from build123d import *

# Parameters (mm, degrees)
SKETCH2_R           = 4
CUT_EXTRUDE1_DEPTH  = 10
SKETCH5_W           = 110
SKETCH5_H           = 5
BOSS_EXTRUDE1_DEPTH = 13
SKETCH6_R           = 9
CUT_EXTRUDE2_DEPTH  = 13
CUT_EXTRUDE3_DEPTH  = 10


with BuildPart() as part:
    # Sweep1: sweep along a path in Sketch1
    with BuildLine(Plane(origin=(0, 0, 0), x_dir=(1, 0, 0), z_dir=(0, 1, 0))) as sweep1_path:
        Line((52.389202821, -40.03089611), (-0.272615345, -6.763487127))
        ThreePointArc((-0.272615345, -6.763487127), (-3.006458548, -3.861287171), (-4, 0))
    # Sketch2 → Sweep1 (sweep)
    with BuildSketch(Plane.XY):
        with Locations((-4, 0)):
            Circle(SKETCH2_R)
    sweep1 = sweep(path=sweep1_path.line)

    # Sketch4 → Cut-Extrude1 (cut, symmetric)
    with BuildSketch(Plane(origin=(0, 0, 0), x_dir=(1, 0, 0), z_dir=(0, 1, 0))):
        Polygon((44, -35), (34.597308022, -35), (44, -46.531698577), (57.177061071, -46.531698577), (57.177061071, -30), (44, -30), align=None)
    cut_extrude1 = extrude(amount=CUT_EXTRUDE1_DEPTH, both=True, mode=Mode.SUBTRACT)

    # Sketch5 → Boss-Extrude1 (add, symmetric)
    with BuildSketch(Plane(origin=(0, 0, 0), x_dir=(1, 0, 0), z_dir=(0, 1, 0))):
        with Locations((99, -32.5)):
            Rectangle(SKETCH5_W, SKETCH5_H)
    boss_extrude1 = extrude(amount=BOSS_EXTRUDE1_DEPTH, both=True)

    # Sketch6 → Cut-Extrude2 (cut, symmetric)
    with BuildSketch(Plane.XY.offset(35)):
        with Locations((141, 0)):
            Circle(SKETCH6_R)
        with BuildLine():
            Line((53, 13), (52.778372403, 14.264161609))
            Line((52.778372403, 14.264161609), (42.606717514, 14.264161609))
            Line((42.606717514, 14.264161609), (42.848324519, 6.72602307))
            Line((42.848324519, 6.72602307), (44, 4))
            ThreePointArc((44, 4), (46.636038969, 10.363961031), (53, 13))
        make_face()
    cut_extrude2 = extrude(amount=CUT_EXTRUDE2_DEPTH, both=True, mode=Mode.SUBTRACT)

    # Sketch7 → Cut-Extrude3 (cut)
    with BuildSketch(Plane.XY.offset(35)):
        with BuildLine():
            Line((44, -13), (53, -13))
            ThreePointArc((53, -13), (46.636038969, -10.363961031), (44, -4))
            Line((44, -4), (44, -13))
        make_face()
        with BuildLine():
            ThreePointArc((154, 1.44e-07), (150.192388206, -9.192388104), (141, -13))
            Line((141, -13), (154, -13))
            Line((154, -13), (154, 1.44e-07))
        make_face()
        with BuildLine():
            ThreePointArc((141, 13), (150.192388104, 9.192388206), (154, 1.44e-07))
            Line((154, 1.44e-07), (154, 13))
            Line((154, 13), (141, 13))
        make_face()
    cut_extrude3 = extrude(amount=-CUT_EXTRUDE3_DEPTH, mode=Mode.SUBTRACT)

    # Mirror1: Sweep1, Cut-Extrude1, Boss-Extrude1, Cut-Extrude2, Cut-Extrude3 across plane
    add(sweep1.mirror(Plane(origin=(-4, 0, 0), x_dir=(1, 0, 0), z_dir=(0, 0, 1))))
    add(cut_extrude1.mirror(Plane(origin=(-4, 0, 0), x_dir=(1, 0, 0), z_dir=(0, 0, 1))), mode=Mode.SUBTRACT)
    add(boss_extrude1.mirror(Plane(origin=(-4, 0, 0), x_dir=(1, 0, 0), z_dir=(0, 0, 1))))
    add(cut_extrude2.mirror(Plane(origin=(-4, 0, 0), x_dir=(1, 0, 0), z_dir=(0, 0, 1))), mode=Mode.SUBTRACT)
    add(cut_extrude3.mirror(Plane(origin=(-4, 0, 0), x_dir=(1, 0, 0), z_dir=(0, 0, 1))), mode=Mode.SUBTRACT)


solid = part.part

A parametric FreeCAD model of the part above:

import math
import FreeCAD as App
import Part
import Sketcher
Q = App.Units.Quantity


def add_polygon(sketch, points):
    """Adds a closed chain of lines whose ends are joined by coincident constraints."""
    first, n = sketch.GeometryCount, len(points)
    for a, b in zip(points, points[1:] + points[:1]):
        sketch.addGeometry(Part.LineSegment(App.Vector(*a, 0), App.Vector(*b, 0)), False)
    for i in range(n):
        sketch.addConstraint(Sketcher.Constraint("Coincident", first + i, 2, first + (i + 1) % n, 1))

doc = App.newDocument("Part")
body = doc.addObject("PartDesign::Body", "Body")

# Sketch on XY plane
sketch1 = body.newObject("Sketcher::SketchObject", "Sketch")
sketch1.AttachmentSupport = (doc.getObject("XY_Plane"), [""])
sketch1.MapMode = "FlatFace"
sketch1.addGeometry(Part.Circle(App.Vector(-4, 0, 0), App.Vector(0, 0, 1), 4), False)
sketch1.addConstraint(Sketcher.Constraint("PointOnObject", 0, 3, -1))
sketch1.addConstraint(Sketcher.Constraint("Diameter", 0, Q("8 mm")))
sketch1.addConstraint(Sketcher.Constraint("DistanceX", 0, 3, -1, 1, Q("4 mm")))

# Sketch on XZ plane
sketch2 = body.newObject("Sketcher::SketchObject", "Sketch001")
sketch2.AttachmentSupport = (doc.getObject("XZ_Plane"), [""])
sketch2.MapMode = "FlatFace"
sketch2.addGeometry(Part.LineSegment(App.Vector(52.389203, 40.030896, 0), App.Vector(-0.272615, 6.763487, 0)), False)
sketch2.addGeometry(Part.ArcOfCircle(Part.Circle(App.Vector(4, 0, 0), App.Vector(0, 0, 1), 8), math.radians(122.281332), math.radians(180)), False)
sketch2.addConstraint(Sketcher.Constraint("Tangent", 0, 2, 1, 1))
sketch2.addConstraint(Sketcher.Constraint("PointOnObject", 1, 3, -1))
sketch2.addConstraint(Sketcher.Constraint("PointOnObject", 1, 2, -1))
sketch2.addConstraint(Sketcher.Constraint("Radius", 1, Q("8 mm")))
sketch2.addConstraint(Sketcher.Constraint("DistanceX", -1, 1, 1, 3, Q("4 mm")))
sketch2.addConstraint(Sketcher.Constraint("DistanceX", 0, 2, 0, 1, Q("52.661818 mm")))
sketch2.addConstraint(Sketcher.Constraint("DistanceY", 0, 2, 0, 1, Q("33.267409 mm")))
doc.recompute()

additivepipe = body.newObject("PartDesign::AdditivePipe", "AdditivePipe")
additivepipe.Profile = sketch1
additivepipe.Spine = (sketch2, ["Edge1", "Edge2"])

# Sketch on XZ plane
sketch3 = body.newObject("Sketcher::SketchObject", "Sketch002")
sketch3.AttachmentSupport = (doc.getObject("XZ_Plane"), [""])
sketch3.MapMode = "FlatFace"
add_polygon(sketch3, [(44, 35), (34.597308, 35), (44, 46.531699), (57.177061, 46.531699), (57.177061, 30), (44, 30)])  # lines 0-5
sketch3.addConstraint(Sketcher.Constraint("Horizontal", 0))
sketch3.addConstraint(Sketcher.Constraint("Horizontal", 2))
sketch3.addConstraint(Sketcher.Constraint("Vertical", 3))
sketch3.addConstraint(Sketcher.Constraint("Horizontal", 4))
sketch3.addConstraint(Sketcher.Constraint("Vertical", 5))
sketch3.addConstraint(Sketcher.Constraint("Vertical", 1, 2, 4, 2))
sketch3.addConstraint(Sketcher.Constraint("DistanceY", 5, 1, 5, 2, Q("5 mm")))
sketch3.addConstraint(Sketcher.Constraint("DistanceY", -1, 1, 0, 2, Q("35 mm")))
sketch3.addConstraint(Sketcher.Constraint("DistanceX", -1, 1, 1, 2, Q("44 mm")))
sketch3.addConstraint(Sketcher.Constraint("DistanceY", 3, 2, 3, 1, Q("16.531699 mm")))
sketch3.addConstraint(Sketcher.Constraint("DistanceX", 0, 2, 0, 1, Q("9.402692 mm")))
sketch3.addConstraint(Sketcher.Constraint("DistanceX", 2, 1, 2, 2, Q("13.177061 mm")))
pocket1 = body.newObject("PartDesign::Pocket", "Pocket")
pocket1.Profile = sketch3
pocket1.Length = 20
pocket1.Midplane = True

# Sketch on XZ plane
sketch4 = body.newObject("Sketcher::SketchObject", "Sketch003")
sketch4.AttachmentSupport = (doc.getObject("XZ_Plane"), [""])
sketch4.MapMode = "FlatFace"
add_polygon(sketch4, [(44, 30), (44, 35), (154, 35), (154, 30)])  # lines 0-3
sketch4.addConstraint(Sketcher.Constraint("Vertical", 0))
sketch4.addConstraint(Sketcher.Constraint("Horizontal", 1))
sketch4.addConstraint(Sketcher.Constraint("Vertical", 2))
sketch4.addConstraint(Sketcher.Constraint("Horizontal", 3))
sketch4.addConstraint(Sketcher.Constraint("DistanceX", 1, 1, 1, 2, Q("110 mm")))
sketch4.addConstraint(Sketcher.Constraint("DistanceY", 0, 1, 0, 2, Q("5 mm")))
sketch4.addConstraint(Sketcher.Constraint("DistanceX", -1, 1, 0, 2, Q("44 mm")))
sketch4.addConstraint(Sketcher.Constraint("DistanceY", -1, 1, 0, 2, Q("35 mm")))
pad1 = body.newObject("PartDesign::Pad", "Pad")
pad1.Profile = sketch4
pad1.Length = 26
pad1.Midplane = True

# Sketch on XY plane
sketch5 = body.newObject("Sketcher::SketchObject", "Sketch004")
sketch5.AttachmentSupport = (doc.getObject("XY_Plane"), [""])
sketch5.MapMode = "FlatFace"
sketch5.AttachmentOffset = App.Placement(App.Vector(0, 0, 35), App.Rotation())
sketch5.addGeometry(Part.Circle(App.Vector(141, 0, 0), App.Vector(0, 0, 1), 9), False)
sketch5.addGeometry(Part.LineSegment(App.Vector(53, 13, 0), App.Vector(52.778372, 14.264162, 0)), False)
sketch5.addGeometry(Part.LineSegment(App.Vector(52.778372, 14.264162, 0), App.Vector(42.606718, 14.264162, 0)), False)
sketch5.addGeometry(Part.LineSegment(App.Vector(42.606718, 14.264162, 0), App.Vector(42.848325, 6.726023, 0)), False)
sketch5.addGeometry(Part.LineSegment(App.Vector(42.848325, 6.726023, 0), App.Vector(44, 4, 0)), False)
sketch5.addGeometry(Part.ArcOfCircle(Part.Circle(App.Vector(53, 4, 0), App.Vector(0, 0, 1), 9), math.radians(90), math.radians(180)), False)
sketch5.addConstraint(Sketcher.Constraint("Coincident", 1, 2, 2, 1))
sketch5.addConstraint(Sketcher.Constraint("Coincident", 2, 2, 3, 1))
sketch5.addConstraint(Sketcher.Constraint("Coincident", 3, 2, 4, 1))
sketch5.addConstraint(Sketcher.Constraint("Coincident", 4, 2, 5, 2))
sketch5.addConstraint(Sketcher.Constraint("Coincident", 5, 1, 1, 1))
sketch5.addConstraint(Sketcher.Constraint("Horizontal", 2))
sketch5.addConstraint(Sketcher.Constraint("Equal", 0, 5))
sketch5.addConstraint(Sketcher.Constraint("PointOnObject", 0, 3, -1))
sketch5.addConstraint(Sketcher.Constraint("Horizontal", 5, 3, 4, 2))
sketch5.addConstraint(Sketcher.Constraint("Diameter", 0, Q("18 mm")))
sketch5.addConstraint(Sketcher.Constraint("DistanceX", -1, 1, 0, 3, Q("141 mm")))
sketch5.addConstraint(Sketcher.Constraint("DistanceX", -1, 1, 5, 3, Q("53 mm")))
sketch5.addConstraint(Sketcher.Constraint("DistanceY", -1, 1, 5, 3, Q("4 mm")))
sketch5.addConstraint(Sketcher.Constraint("DistanceX", -1, 1, 5, 1, Q("53 mm")))
sketch5.addConstraint(Sketcher.Constraint("Distance", 1, Q("1.283442 mm")))
sketch5.addConstraint(Sketcher.Constraint("Distance", 3, Q("7.542009 mm")))
sketch5.addConstraint(Sketcher.Constraint("DistanceX", 2, 2, 2, 1, Q("10.171655 mm")))
sketch5.addConstraint(Sketcher.Constraint("DistanceY", -1, 1, 1, 2, Q("14.264162 mm")))
sketch5.addConstraint(Sketcher.Constraint("DistanceY", 3, 2, 2, 2, Q("7.538139 mm")))
pocket2 = body.newObject("PartDesign::Pocket", "Pocket001")
pocket2.Profile = sketch5
pocket2.Length = 26
pocket2.Midplane = True

# Sketch on XY plane
sketch6 = body.newObject("Sketcher::SketchObject", "Sketch005")
sketch6.AttachmentSupport = (doc.getObject("XY_Plane"), [""])
sketch6.MapMode = "FlatFace"
sketch6.AttachmentOffset = App.Placement(App.Vector(0, 0, 35), App.Rotation())
sketch6.addGeometry(Part.LineSegment(App.Vector(44, -13, 0), App.Vector(53, -13, 0)), False)
sketch6.addGeometry(Part.ArcOfCircle(Part.Circle(App.Vector(53, -4, 0), App.Vector(0, 0, 1), 9), math.radians(180), math.radians(270)), False)
sketch6.addGeometry(Part.LineSegment(App.Vector(44, -4, 0), App.Vector(44, -13, 0)), False)
sketch6.addGeometry(Part.ArcOfCircle(Part.Circle(App.Vector(141, 0, 0), App.Vector(0, 0, 1), 13), math.radians(-90), math.radians(0.000001)), False)
sketch6.addGeometry(Part.LineSegment(App.Vector(141, -13, 0), App.Vector(154, -13, 0)), False)
sketch6.addGeometry(Part.LineSegment(App.Vector(154, -13, 0), App.Vector(154, 0, 0)), False)
sketch6.addGeometry(Part.ArcOfCircle(Part.Circle(App.Vector(141, 0, 0), App.Vector(0, 0, 1), 13), math.radians(0.000001), math.radians(90)), False)
sketch6.addGeometry(Part.LineSegment(App.Vector(154, 0, 0), App.Vector(154, 13, 0)), False)
sketch6.addGeometry(Part.LineSegment(App.Vector(154, 13, 0), App.Vector(141, 13, 0)), False)
sketch6.addConstraint(Sketcher.Constraint("Tangent", 0, 2, 1, 2))
sketch6.addConstraint(Sketcher.Constraint("Tangent", 1, 1, 2, 1))
sketch6.addConstraint(Sketcher.Constraint("Coincident", 2, 2, 0, 1))
sketch6.addConstraint(Sketcher.Constraint("Tangent", 3, 1, 4, 1))
sketch6.addConstraint(Sketcher.Constraint("Coincident", 4, 2, 5, 1))
sketch6.addConstraint(Sketcher.Constraint("Tangent", 5, 2, 3, 2))
sketch6.addConstraint(Sketcher.Constraint("Tangent", 6, 1, 7, 1))
sketch6.addConstraint(Sketcher.Constraint("Coincident", 7, 2, 8, 1))
sketch6.addConstraint(Sketcher.Constraint("Tangent", 8, 2, 6, 2))
sketch6.addConstraint(Sketcher.Constraint("Horizontal", 0))
sketch6.addConstraint(Sketcher.Constraint("Vertical", 2))
sketch6.addConstraint(Sketcher.Constraint("Horizontal", 4))
sketch6.addConstraint(Sketcher.Constraint("Vertical", 5))
sketch6.addConstraint(Sketcher.Constraint("Vertical", 7))
sketch6.addConstraint(Sketcher.Constraint("Horizontal", 8))
sketch6.addConstraint(Sketcher.Constraint("Coincident", 6, 3, 3, 3))
sketch6.addConstraint(Sketcher.Constraint("Equal", 3, 6))
sketch6.addConstraint(Sketcher.Constraint("PointOnObject", 3, 3, -1))
sketch6.addConstraint(Sketcher.Constraint("Horizontal", 2, 2, 3, 1))
sketch6.addConstraint(Sketcher.Constraint("Radius", 1, Q("9 mm")))
sketch6.addConstraint(Sketcher.Constraint("Radius", 3, Q("13 mm")))
sketch6.addConstraint(Sketcher.Constraint("DistanceX", -1, 1, 1, 3, Q("53 mm")))
sketch6.addConstraint(Sketcher.Constraint("DistanceX", -1, 1, 3, 3, Q("141 mm")))
pocket3 = body.newObject("PartDesign::Pocket", "Pocket002")
pocket3.Profile = sketch6
pocket3.Length = 10
doc.recompute()

mirrored = body.newObject("PartDesign::Mirrored", "Mirrored")
mirrored.Originals = [additivepipe, pocket1, pad1, pocket2, pocket3]
mirrored.MirrorPlane = (doc.getObject("XY_Plane"), [""])
body.Tip = mirrored

doc.recompute()
